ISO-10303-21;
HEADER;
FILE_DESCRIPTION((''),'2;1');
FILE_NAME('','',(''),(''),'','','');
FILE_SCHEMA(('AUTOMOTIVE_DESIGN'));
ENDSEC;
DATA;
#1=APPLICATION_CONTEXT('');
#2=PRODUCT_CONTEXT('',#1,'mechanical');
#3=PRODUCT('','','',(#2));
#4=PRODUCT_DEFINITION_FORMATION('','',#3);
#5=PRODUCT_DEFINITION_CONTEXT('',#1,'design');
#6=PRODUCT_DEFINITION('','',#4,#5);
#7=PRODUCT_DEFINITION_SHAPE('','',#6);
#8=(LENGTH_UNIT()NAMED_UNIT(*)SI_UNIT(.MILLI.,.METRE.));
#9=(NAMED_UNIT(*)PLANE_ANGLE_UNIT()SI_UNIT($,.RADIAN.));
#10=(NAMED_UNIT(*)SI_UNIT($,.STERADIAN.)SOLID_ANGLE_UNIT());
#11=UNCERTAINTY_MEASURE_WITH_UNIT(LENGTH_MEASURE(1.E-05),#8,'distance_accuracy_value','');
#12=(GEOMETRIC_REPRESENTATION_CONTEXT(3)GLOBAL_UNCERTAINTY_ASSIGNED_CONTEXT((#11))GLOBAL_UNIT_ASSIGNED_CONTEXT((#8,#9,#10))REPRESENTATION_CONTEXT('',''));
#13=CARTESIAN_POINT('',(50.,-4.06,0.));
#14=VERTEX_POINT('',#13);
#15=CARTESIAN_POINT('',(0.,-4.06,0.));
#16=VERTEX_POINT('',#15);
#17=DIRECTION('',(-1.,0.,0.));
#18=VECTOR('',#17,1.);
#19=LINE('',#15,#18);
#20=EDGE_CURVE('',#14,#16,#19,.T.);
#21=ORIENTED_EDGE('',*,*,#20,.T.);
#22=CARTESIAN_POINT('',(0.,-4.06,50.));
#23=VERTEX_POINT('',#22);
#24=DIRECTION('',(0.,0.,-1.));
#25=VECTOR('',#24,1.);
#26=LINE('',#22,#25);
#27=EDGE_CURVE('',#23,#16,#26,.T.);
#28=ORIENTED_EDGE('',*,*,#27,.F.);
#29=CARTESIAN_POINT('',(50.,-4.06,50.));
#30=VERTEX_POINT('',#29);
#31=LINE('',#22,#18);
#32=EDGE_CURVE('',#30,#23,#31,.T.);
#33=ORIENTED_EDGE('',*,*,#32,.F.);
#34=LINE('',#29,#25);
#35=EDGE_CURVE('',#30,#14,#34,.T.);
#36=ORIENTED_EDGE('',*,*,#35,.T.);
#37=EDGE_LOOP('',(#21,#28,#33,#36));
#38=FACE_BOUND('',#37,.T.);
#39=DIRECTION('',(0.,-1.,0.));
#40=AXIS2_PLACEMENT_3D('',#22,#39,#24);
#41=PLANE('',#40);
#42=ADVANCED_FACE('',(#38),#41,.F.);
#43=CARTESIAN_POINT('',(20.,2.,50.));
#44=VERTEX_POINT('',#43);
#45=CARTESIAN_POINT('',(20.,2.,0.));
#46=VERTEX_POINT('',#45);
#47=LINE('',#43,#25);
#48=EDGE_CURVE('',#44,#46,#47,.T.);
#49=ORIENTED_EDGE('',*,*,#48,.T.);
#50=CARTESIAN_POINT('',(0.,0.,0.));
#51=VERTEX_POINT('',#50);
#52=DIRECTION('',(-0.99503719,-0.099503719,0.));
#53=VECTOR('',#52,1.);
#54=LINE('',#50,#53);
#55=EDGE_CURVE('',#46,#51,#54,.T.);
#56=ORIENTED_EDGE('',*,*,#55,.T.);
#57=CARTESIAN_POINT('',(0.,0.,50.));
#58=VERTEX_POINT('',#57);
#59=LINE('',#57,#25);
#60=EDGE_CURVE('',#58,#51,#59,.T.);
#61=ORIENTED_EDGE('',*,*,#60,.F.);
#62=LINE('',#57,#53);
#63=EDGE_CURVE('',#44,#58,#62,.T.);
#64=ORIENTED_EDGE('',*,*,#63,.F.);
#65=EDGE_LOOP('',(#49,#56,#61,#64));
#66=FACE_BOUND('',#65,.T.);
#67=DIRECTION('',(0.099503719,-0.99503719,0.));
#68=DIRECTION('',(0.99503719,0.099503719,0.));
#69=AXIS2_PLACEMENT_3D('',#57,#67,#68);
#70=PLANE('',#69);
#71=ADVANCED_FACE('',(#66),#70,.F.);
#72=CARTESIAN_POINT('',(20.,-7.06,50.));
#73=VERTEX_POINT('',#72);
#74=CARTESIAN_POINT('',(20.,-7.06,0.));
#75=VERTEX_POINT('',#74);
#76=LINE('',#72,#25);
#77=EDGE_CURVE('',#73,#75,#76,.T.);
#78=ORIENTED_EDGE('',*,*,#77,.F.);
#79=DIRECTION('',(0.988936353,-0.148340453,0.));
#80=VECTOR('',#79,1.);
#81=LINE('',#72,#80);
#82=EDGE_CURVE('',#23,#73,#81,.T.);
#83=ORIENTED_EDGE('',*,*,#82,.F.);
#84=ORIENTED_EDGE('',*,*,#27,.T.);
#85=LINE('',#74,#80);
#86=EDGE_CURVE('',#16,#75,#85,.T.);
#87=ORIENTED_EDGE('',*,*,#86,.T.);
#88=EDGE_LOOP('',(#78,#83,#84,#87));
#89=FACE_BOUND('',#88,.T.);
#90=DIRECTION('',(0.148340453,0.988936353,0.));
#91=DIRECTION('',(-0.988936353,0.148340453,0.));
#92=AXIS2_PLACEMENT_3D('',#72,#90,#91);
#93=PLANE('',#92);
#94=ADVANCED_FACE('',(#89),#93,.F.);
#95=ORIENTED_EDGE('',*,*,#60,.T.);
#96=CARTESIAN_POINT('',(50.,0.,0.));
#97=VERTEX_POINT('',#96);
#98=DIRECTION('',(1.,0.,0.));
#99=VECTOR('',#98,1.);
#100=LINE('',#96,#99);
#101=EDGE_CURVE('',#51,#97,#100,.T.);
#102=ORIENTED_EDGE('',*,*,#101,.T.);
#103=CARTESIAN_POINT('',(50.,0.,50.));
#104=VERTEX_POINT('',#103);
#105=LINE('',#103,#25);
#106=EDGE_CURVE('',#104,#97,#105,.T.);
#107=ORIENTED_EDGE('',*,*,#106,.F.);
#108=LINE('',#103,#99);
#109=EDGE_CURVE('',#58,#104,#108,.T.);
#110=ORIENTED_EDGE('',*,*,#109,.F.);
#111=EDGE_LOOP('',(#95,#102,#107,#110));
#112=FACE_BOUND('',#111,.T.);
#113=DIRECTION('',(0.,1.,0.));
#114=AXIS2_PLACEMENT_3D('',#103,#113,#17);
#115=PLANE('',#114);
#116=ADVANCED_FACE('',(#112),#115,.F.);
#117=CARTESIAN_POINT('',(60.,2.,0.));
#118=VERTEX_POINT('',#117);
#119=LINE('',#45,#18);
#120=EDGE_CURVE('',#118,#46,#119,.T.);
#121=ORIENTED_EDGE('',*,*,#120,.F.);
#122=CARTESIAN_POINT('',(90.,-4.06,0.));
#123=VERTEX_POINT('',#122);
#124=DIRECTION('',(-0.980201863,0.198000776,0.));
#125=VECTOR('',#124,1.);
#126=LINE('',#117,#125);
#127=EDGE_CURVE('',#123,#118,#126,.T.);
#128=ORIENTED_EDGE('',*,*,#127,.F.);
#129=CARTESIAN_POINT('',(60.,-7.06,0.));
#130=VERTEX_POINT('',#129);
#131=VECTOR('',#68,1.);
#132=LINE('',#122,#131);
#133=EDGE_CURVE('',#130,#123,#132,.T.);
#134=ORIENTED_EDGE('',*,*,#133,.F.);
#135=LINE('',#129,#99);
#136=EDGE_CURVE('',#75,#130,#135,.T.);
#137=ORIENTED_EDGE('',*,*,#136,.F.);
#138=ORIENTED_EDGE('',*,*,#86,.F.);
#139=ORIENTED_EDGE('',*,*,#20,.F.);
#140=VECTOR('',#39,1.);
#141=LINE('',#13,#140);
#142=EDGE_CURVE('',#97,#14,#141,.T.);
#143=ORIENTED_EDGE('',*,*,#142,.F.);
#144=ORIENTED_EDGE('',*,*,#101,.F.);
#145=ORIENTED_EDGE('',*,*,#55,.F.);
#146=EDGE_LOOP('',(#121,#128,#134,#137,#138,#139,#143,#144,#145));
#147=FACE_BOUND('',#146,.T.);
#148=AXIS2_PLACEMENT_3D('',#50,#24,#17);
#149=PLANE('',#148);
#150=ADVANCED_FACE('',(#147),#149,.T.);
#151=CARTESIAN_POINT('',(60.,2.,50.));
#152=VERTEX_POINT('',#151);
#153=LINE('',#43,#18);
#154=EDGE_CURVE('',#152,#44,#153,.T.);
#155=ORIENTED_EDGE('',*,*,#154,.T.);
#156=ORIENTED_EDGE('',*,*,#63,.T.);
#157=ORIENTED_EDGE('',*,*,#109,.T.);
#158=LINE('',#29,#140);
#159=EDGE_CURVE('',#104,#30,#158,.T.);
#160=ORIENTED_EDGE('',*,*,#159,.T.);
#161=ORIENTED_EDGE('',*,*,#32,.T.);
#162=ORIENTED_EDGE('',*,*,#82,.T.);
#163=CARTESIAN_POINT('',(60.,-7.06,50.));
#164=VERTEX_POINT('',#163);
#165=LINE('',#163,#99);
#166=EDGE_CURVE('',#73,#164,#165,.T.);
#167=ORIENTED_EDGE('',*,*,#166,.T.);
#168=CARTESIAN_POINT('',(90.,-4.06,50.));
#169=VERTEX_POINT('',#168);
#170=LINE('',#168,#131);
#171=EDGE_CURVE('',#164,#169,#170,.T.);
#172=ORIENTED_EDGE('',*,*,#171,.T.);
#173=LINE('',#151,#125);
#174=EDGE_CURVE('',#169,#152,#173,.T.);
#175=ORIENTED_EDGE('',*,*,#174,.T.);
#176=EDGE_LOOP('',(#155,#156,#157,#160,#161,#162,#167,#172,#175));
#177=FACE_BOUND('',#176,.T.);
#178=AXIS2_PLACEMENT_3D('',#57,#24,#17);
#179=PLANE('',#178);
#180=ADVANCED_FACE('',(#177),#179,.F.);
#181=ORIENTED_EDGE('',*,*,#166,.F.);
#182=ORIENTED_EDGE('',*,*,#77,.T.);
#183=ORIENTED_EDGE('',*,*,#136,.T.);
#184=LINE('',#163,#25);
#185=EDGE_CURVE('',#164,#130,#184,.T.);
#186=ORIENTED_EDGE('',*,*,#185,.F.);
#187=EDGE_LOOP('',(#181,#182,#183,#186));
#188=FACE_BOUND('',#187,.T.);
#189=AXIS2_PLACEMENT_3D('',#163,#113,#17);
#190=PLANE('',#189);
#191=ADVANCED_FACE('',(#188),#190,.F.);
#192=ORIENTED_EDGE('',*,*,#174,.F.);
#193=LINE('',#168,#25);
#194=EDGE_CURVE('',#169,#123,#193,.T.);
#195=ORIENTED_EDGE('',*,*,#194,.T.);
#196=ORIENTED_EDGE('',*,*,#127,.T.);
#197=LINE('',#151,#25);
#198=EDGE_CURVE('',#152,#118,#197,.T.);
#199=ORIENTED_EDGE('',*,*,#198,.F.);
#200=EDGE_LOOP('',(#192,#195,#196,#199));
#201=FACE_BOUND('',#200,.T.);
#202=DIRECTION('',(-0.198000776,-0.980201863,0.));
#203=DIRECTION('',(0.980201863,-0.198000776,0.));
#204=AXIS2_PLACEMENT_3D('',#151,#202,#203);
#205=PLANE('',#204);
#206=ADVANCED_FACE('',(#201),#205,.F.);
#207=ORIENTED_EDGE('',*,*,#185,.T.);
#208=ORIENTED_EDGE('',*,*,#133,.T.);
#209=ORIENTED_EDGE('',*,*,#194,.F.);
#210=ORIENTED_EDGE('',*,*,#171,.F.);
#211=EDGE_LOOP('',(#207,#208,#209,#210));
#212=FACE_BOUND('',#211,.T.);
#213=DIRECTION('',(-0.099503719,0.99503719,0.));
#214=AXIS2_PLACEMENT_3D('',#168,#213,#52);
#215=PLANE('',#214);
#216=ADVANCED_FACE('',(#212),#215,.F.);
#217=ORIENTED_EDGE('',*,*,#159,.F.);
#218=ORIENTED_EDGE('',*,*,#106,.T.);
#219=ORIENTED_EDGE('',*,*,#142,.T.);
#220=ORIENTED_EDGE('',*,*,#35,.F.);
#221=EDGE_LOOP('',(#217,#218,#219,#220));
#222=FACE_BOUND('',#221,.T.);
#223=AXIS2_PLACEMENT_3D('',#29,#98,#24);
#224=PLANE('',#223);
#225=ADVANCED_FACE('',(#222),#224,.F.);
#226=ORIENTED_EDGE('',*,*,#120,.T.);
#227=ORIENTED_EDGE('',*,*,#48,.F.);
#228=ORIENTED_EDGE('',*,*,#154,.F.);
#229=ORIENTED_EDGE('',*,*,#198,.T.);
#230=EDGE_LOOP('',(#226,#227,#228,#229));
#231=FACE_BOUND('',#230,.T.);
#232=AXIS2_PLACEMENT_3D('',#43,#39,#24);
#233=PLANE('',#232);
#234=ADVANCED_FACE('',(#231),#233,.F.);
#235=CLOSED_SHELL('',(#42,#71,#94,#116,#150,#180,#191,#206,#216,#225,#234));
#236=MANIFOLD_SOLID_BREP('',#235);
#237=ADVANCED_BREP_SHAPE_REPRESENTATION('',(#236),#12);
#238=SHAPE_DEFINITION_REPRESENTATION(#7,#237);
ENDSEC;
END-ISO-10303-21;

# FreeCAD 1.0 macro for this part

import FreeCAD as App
import Part
import Sketcher

V = App.Vector
Q = App.Units.Quantity


def add_polygon(sketch, points):
    """Adds a closed chain of lines whose ends are joined by coincident constraints."""
    first, n = sketch.GeometryCount, len(points)
    for a, b in zip(points, points[1:] + points[:1]):
        sketch.addGeometry(Part.LineSegment(App.Vector(*a, 0), App.Vector(*b, 0)), False)
    for i in range(n):
        sketch.addConstraint(Sketcher.Constraint("Coincident", first + i, 2, first + (i + 1) % n, 1))

doc = App.newDocument("Part")
body = doc.addObject("PartDesign::Body", "Body")

# Sketch on XY plane
sketch1 = body.newObject("Sketcher::SketchObject", "Sketch")
sketch1.AttachmentSupport = (doc.getObject("XY_Plane"), [""])
sketch1.MapMode = "FlatFace"
add_polygon(sketch1, [(20, 2), (0, 0), (50, 0), (50, -4.1), (0, -4.1), (20, -7.1), (60, -7.1), (90, -4.1), (60, 2)])  # lines 0-8
sketch1.addConstraint(Sketcher.Constraint("Horizontal", 1))
sketch1.addConstraint(Sketcher.Constraint("Vertical", 2))
sketch1.addConstraint(Sketcher.Constraint("Horizontal", 3))
sketch1.addConstraint(Sketcher.Constraint("Horizontal", 5))
sketch1.addConstraint(Sketcher.Constraint("Horizontal", 8))
sketch1.addConstraint(Sketcher.Constraint("Coincident", 0, 2, -1, 1))
sketch1.addConstraint(Sketcher.Constraint("PointOnObject", 3, 2, -2))
sketch1.addConstraint(Sketcher.Constraint("Parallel", 0, 6))
sketch1.addConstraint(Sketcher.Constraint("Horizontal", 3, 2, 6, 2))
sketch1.addConstraint(Sketcher.Constraint("Vertical", 5, 2, 7, 2))
sketch1.addConstraint(Sketcher.Constraint("Vertical", 4, 2, 8, 2))
sketch1.addConstraint(Sketcher.Constraint("DistanceX", 1, 1, 1, 2, Q("50 mm")))
sketch1.addConstraint(Sketcher.Constraint("DistanceX", 5, 1, 5, 2, Q("40 mm")))
sketch1.addConstraint(Sketcher.Constraint("DistanceX", -1, 1, 4, 2, Q("20 mm")))
sketch1.addConstraint(Sketcher.Constraint("DistanceX", -1, 1, 6, 2, Q("90 mm")))
sketch1.addConstraint(Sketcher.Constraint("DistanceY", -1, 1, 7, 2, Q("2 mm")))
sketch1.addConstraint(Sketcher.Constraint("DistanceY", 2, 2, 2, 1, Q("4.06 mm")))
pad1 = body.newObject("PartDesign::Pad", "Pad")
pad1.Profile = sketch1
pad1.Length = 50

doc.recompute()
